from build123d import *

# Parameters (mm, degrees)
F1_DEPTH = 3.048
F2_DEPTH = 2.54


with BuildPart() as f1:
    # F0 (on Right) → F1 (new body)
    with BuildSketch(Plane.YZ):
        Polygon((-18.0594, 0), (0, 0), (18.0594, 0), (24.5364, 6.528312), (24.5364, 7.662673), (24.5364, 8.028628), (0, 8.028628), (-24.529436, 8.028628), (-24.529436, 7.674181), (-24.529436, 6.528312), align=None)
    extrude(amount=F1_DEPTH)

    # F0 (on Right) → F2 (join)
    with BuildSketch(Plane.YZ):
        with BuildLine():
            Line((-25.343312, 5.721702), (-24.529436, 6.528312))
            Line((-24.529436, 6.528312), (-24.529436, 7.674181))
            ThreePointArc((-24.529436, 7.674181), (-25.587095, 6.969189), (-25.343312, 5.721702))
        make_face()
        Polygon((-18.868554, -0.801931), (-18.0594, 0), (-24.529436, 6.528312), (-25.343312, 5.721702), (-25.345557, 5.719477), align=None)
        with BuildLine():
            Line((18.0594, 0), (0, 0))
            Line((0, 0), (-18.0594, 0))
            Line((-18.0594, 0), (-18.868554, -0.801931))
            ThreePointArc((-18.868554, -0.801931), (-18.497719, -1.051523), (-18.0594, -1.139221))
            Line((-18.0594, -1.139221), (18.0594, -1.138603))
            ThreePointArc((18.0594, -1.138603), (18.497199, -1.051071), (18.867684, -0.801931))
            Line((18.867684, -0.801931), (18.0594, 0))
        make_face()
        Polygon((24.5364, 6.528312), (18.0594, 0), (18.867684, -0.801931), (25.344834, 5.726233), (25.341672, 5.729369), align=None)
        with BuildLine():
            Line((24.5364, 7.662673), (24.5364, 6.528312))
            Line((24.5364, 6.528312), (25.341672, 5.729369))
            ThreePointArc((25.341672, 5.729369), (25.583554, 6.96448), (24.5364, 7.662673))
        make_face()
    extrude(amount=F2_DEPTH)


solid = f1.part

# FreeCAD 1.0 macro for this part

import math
import FreeCAD as App
import Part
import Sketcher
Q = App.Units.Quantity


def add_polygon(sketch, points):
    """Adds a closed chain of lines whose ends are joined by coincident constraints."""
    first, n = sketch.GeometryCount, len(points)
    for a, b in zip(points, points[1:] + points[:1]):
        sketch.addGeometry(Part.LineSegment(App.Vector(*a, 0), App.Vector(*b, 0)), False)
    for i in range(n):
        sketch.addConstraint(Sketcher.Constraint("Coincident", first + i, 2, first + (i + 1) % n, 1))

doc = App.newDocument("Part")
body = doc.addObject("PartDesign::Body", "Body")

# Sketch on YZ plane
sketch1 = body.newObject("Sketcher::SketchObject", "Sketch")
sketch1.AttachmentSupport = (doc.getObject("YZ_Plane"), [""])
sketch1.MapMode = "FlatFace"
add_polygon(sketch1, [(-18.1, 0), (18.1, 0), (24.5, 6.5), (24.5, 8), (-24.5, 8), (-24.5, 6.5)])  # lines 0-5
sketch1.addConstraint(Sketcher.Constraint("Horizontal", 0))
sketch1.addConstraint(Sketcher.Constraint("Vertical", 2))
sketch1.addConstraint(Sketcher.Constraint("Horizontal", 3))
sketch1.addConstraint(Sketcher.Constraint("Vertical", 4))
sketch1.addConstraint(Sketcher.Constraint("Symmetric", 0, 2, 5, 2, -1, 1))
sketch1.addConstraint(Sketcher.Constraint("Horizontal", 1, 2, 4, 2))
sketch1.addConstraint(Sketcher.Constraint("DistanceX", 0, 1, 0, 2, Q("1.422 in")))
sketch1.addConstraint(Sketcher.Constraint("DistanceX", -1, 1, 1, 2, Q("0.966 in")))
sketch1.addConstraint(Sketcher.Constraint("DistanceX", 3, 2, 3, 1, Q("49.065836 mm")))
sketch1.addConstraint(Sketcher.Constraint("DistanceY", 2, 1, 2, 2, Q("1.500316 mm")))
sketch1.addConstraint(Sketcher.Constraint("DistanceY", -1, 1, 1, 2, Q("6.528312 mm")))
pad1 = body.newObject("PartDesign::Pad", "Pad")
pad1.Profile = sketch1
pad1.Length = Q("0.12 in")

# Sketch on YZ plane
sketch2 = body.newObject("Sketcher::SketchObject", "Sketch001")
sketch2.AttachmentSupport = (doc.getObject("YZ_Plane"), [""])
sketch2.MapMode = "FlatFace"
sketch2.addGeometry(Part.LineSegment(App.Vector(-24.529436, 6.528312, 0), App.Vector(-24.529436, 7.674181, 0)), False)
sketch2.addGeometry(Part.ArcOfCircle(Part.Circle(App.Vector(-24.529436, 6.528313, 0), App.Vector(0, 0, 1), 1.145868), math.radians(89.999999), math.radians(224.743115)), False)
sketch2.addGeometry(Part.LineSegment(App.Vector(-25.343312, 5.721702, 0), App.Vector(-25.345557, 5.719477, 0)), False)
sketch2.addGeometry(Part.LineSegment(App.Vector(-25.345557, 5.719477, 0), App.Vector(-18.868554, -0.801931, 0)), False)
sketch2.addGeometry(Part.ArcOfCircle(Part.Circle(App.Vector(-18.0594, -0.000001, 0), App.Vector(0, 0, 1), 1.13922), math.radians(-135.256916), math.radians(-90.000008)), False)
sketch2.addGeometry(Part.LineSegment(App.Vector(-18.0594, -1.139221, 0), App.Vector(18.0594, -1.138603, 0)), False)
sketch2.addGeometry(Part.ArcOfCircle(Part.Circle(App.Vector(18.059403, -0.000009, 0), App.Vector(0, 0, 1), 1.138594), math.radians(-90.00017), math.radians(-44.773752)), False)
sketch2.addGeometry(Part.LineSegment(App.Vector(18.867684, -0.801931, 0), App.Vector(25.344834, 5.726233, 0)), False)
sketch2.addGeometry(Part.LineSegment(App.Vector(25.344834, 5.726233, 0), App.Vector(25.341672, 5.729369, 0)), False)
sketch2.addGeometry(Part.ArcOfCircle(Part.Circle(App.Vector(24.5364, 6.528312, 0), App.Vector(0, 0, 1), 1.134361), math.radians(-44.773969), math.radians(89.999995)), False)
sketch2.addGeometry(Part.LineSegment(App.Vector(24.5364, 7.662673, 0), App.Vector(24.5364, 6.528312, 0)), False)
sketch2.addGeometry(Part.LineSegment(App.Vector(24.5364, 6.528312, 0), App.Vector(18.0594, 0, 0)), False)
sketch2.addGeometry(Part.LineSegment(App.Vector(18.0594, 0, 0), App.Vector(-18.0594, 0, 0)), False)
sketch2.addGeometry(Part.LineSegment(App.Vector(-18.0594, 0, 0), App.Vector(-24.529436, 6.528312, 0)), False)
sketch2.addConstraint(Sketcher.Constraint("Coincident", 0, 2, 1, 1))
sketch2.addConstraint(Sketcher.Constraint("Coincident", 1, 2, 2, 1))
sketch2.addConstraint(Sketcher.Constraint("Coincident", 2, 2, 3, 1))
sketch2.addConstraint(Sketcher.Constraint("Coincident", 3, 2, 4, 1))
sketch2.addConstraint(Sketcher.Constraint("Coincident", 4, 2, 5, 1))
sketch2.addConstraint(Sketcher.Constraint("Coincident", 5, 2, 6, 1))
sketch2.addConstraint(Sketcher.Constraint("Coincident", 6, 2, 7, 1))
sketch2.addConstraint(Sketcher.Constraint("Coincident", 7, 2, 8, 1))
sketch2.addConstraint(Sketcher.Constraint("Coincident", 8, 2, 9, 1))
sketch2.addConstraint(Sketcher.Constraint("Coincident", 9, 2, 10, 1))
sketch2.addConstraint(Sketcher.Constraint("Coincident", 10, 2, 11, 1))
sketch2.addConstraint(Sketcher.Constraint("Coincident", 11, 2, 12, 1))
sketch2.addConstraint(Sketcher.Constraint("Coincident", 12, 2, 13, 1))
sketch2.addConstraint(Sketcher.Constraint("Coincident", 13, 2, 0, 1))
sketch2.addConstraint(Sketcher.Constraint("Vertical", 0))
sketch2.addConstraint(Sketcher.Constraint("Vertical", 10))
sketch2.addConstraint(Sketcher.Constraint("Horizontal", 12))
sketch2.addConstraint(Sketcher.Constraint("Coincident", 10, 2, 9, 3))
sketch2.addConstraint(Sketcher.Constraint("Coincident", 11, 2, 6, 3))
sketch2.addConstraint(Sketcher.Constraint("Coincident", 12, 2, 4, 3))
sketch2.addConstraint(Sketcher.Constraint("Coincident", 13, 2, 1, 3))
sketch2.addConstraint(Sketcher.Constraint("Symmetric", 11, 2, 12, 2, -1, 1))
sketch2.addConstraint(Sketcher.Constraint("Horizontal", 1, 3, 9, 3))
sketch2.addConstraint(Sketcher.Constraint("Horizontal", 3, 2, 6, 2))
sketch2.addConstraint(Sketcher.Constraint("Vertical", 5, 2, 11, 2))
sketch2.addConstraint(Sketcher.Constraint("Vertical", 4, 2, 12, 2))
sketch2.addConstraint(Sketcher.Constraint("Equal", 7, 11))
sketch2.addConstraint(Sketcher.Constraint("DistanceX", 12, 2, 12, 1, Q("1.422 in")))
sketch2.addConstraint(Sketcher.Constraint("DistanceX", -1, 1, 9, 3, Q("0.966 in")))
sketch2.addConstraint(Sketcher.Constraint("Radius", 1, Q("1.145868 mm")))
sketch2.addConstraint(Sketcher.Constraint("Radius", 4, Q("1.13922 mm")))
sketch2.addConstraint(Sketcher.Constraint("Radius", 9, Q("1.134361 mm")))
sketch2.addConstraint(Sketcher.Constraint("DistanceX", 2, 2, 3, 2, Q("0.2550001 in")))
sketch2.addConstraint(Sketcher.Constraint("Radius", 6, Q("1.138594 mm")))
sketch2.addConstraint(Sketcher.Constraint("DistanceY", 6, 2, 8, 2, Q("6.5313 mm")))
sketch2.addConstraint(Sketcher.Constraint("Distance", 2, Q("0.003161 mm")))
sketch2.addConstraint(Sketcher.Constraint("Distance", 3, Q("9.191318 mm")))
sketch2.addConstraint(Sketcher.Constraint("DistanceY", -1, 1, 0, 2, Q("7.674181 mm")))
sketch2.addConstraint(Sketcher.Constraint("DistanceX", 1, 2, -1, 1, Q("25.343312 mm")))
sketch2.addConstraint(Sketcher.Constraint("DistanceY", 3, 2, -1, 1, Q("0.801931 mm")))
sketch2.addConstraint(Sketcher.Constraint("DistanceY", 7, 2, 9, 3, Q("0.802079 mm")))
pad2 = body.newObject("PartDesign::Pad", "Pad001")
pad2.Profile = sketch2
pad2.Length = Q("0.1 in")

doc.recompute()
